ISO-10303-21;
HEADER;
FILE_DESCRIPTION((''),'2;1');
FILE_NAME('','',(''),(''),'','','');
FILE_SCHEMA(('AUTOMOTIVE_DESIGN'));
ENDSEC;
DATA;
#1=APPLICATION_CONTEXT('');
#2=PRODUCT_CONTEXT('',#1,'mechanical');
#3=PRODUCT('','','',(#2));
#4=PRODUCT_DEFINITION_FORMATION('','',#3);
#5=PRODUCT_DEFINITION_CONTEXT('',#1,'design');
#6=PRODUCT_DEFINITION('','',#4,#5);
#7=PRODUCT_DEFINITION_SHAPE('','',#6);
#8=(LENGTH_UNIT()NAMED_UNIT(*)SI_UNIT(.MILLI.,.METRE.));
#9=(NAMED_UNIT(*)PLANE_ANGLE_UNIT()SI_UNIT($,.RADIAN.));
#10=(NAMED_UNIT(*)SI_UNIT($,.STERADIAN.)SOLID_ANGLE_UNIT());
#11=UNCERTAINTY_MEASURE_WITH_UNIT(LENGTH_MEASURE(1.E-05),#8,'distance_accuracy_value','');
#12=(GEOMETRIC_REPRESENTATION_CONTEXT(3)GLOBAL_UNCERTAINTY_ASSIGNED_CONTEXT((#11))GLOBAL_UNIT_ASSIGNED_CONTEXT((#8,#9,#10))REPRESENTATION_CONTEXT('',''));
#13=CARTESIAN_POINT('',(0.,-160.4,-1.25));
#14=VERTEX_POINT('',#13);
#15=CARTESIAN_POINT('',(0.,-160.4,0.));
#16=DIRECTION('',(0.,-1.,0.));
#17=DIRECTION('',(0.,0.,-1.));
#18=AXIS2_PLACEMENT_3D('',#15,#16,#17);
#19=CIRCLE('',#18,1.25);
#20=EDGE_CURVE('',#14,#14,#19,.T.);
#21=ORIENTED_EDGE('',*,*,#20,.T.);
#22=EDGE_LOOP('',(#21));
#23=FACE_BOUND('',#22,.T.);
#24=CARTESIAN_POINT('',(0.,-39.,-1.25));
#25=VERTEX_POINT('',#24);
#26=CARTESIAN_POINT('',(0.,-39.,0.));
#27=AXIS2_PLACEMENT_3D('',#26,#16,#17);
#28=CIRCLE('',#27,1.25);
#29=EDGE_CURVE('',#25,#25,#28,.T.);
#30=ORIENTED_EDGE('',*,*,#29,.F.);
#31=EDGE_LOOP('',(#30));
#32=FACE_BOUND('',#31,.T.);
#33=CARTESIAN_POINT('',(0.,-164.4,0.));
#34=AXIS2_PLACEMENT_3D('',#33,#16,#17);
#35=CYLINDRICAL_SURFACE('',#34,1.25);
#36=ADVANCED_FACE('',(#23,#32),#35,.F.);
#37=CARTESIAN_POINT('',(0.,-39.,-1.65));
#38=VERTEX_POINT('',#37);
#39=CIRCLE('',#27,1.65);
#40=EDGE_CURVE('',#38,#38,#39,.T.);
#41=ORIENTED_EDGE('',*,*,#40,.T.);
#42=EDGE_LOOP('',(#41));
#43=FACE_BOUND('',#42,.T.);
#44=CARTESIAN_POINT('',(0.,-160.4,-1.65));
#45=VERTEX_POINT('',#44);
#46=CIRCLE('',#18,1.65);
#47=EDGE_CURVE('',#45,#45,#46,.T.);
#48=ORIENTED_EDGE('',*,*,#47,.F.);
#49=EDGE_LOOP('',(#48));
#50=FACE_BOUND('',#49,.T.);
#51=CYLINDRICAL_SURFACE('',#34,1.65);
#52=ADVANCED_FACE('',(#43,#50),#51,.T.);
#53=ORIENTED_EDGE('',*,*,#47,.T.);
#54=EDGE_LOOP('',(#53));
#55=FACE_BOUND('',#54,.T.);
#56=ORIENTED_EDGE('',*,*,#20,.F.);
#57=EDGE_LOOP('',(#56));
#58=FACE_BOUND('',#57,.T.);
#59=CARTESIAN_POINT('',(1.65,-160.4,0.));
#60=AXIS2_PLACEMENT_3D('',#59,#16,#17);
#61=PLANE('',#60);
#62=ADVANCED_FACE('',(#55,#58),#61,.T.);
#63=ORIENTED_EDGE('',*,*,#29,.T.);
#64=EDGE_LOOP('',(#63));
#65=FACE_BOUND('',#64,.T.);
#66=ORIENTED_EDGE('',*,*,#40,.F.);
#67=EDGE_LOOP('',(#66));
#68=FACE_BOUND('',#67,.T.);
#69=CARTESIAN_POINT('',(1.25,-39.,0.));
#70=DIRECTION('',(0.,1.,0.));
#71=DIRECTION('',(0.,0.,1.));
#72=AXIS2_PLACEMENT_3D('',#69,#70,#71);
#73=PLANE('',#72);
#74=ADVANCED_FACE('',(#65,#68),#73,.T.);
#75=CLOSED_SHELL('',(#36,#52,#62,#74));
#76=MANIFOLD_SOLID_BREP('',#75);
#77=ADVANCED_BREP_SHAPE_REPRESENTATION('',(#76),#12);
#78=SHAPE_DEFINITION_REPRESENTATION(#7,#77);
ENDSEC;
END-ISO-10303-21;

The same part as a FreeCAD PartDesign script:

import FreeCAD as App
import Part
import Sketcher

doc = App.newDocument("Part")
body = doc.addObject("PartDesign::Body", "Body")

# Sketch on XY plane
sketch1 = doc.addObject("Sketcher::SketchObject", "Sketch")
body.addObject(sketch1)
sketch1.AttachmentSupport = (doc.XY_Plane, [""])
sketch1.MapMode = "FlatFace"
sketch1.addGeometry([
    Part.LineSegment(App.Vector(1.25, -39, 0), App.Vector(1.25, -160.4, 0)),
    Part.LineSegment(App.Vector(1.25, -160.4, 0), App.Vector(1.65, -160.4, 0)),
    Part.LineSegment(App.Vector(1.65, -160.4, 0), App.Vector(1.65, -39, 0)),
    Part.LineSegment(App.Vector(1.65, -39, 0), App.Vector(1.25, -39, 0)),
], False)
sketch1.addConstraint([
    Sketcher.Constraint("Coincident", 0, 2, 1, 1),
    Sketcher.Constraint("Coincident", 1, 2, 2, 1),
    Sketcher.Constraint("Coincident", 2, 2, 3, 1),
    Sketcher.Constraint("Coincident", 3, 2, 0, 1),
    Sketcher.Constraint("Vertical", 0),
    Sketcher.Constraint("Horizontal", 1),
    Sketcher.Constraint("Vertical", 2),
    Sketcher.Constraint("Horizontal", 3),
    Sketcher.Constraint("DistanceX", 1, 1, 1, 2, 0.4),
    Sketcher.Constraint("DistanceY", 0, 2, 0, 1, 121.4),
    Sketcher.Constraint("DistanceY", 2, 2, -1, 1, 39.0),
    Sketcher.Constraint("DistanceX", -1, 1, 0, 2, 1.25),
])
revolution = doc.addObject("PartDesign::Revolution", "Revolution")
body.addObject(revolution)
revolution.Profile = sketch1
revolution.ReferenceAxis = (sketch1, ["V_Axis"])
revolution.Angle = 360

doc.recompute()
